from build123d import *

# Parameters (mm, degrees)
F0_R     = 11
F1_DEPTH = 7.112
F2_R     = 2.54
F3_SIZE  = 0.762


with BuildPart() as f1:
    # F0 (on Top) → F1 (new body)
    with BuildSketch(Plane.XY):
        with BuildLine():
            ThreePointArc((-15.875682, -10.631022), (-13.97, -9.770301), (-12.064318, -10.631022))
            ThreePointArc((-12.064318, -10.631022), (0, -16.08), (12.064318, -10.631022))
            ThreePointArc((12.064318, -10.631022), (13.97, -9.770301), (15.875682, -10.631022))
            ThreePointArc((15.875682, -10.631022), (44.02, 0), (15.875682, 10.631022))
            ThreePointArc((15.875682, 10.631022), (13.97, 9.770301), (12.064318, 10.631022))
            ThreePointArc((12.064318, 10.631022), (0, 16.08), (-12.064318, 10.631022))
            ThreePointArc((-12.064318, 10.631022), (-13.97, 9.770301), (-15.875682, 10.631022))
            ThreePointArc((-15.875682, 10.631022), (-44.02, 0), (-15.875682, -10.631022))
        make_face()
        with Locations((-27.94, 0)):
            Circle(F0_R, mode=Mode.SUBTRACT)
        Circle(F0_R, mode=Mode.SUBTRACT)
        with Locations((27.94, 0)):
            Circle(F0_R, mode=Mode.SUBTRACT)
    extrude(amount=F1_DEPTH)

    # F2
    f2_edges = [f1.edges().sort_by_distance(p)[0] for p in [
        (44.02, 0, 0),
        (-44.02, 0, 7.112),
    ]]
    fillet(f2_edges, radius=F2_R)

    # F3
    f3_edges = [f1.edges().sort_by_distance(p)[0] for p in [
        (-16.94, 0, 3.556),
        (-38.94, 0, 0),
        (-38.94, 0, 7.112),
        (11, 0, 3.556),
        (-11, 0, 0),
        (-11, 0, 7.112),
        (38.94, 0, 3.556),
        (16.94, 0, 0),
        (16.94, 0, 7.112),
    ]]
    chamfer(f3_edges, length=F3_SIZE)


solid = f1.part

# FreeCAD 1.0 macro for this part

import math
import FreeCAD as App
import Part
import Sketcher
from FreeCAD import Vector
Q = App.Units.Quantity


def edges_at(feature, points):
    """Names of the edges that pass closest to the given points."""
    edges = feature.Shape.Edges
    near = lambda p: min(range(len(edges)), key=lambda i: edges[i].distToShape(Part.Vertex(*p))[0])
    return sorted({f"Edge{near(p) + 1}" for p in points})

doc = App.newDocument("Part")
body = doc.addObject("PartDesign::Body", "Body")

sketch1 = body.newObject("Sketcher::SketchObject", "Sketch")
sketch1.AttachmentSupport = (doc.getObject("XY_Plane"), [""])
sketch1.MapMode = "FlatFace"
sketch1.addGeometry([
    Part.ArcOfCircle(Part.Circle(Vector(-14, -12.3, 0), Vector(0, 0, 1), 2.5), math.radians(41), math.radians(139)),
    Part.ArcOfCircle(Part.Circle(Vector(0, 0, 0), Vector(0, 0, 1), 16.1), math.radians(-139), math.radians(-41)),
    Part.ArcOfCircle(Part.Circle(Vector(14, -12.3, 0), Vector(0, 0, 1), 2.5), math.radians(41), math.radians(139)),
    Part.ArcOfCircle(Part.Circle(Vector(27.9, 0, 0), Vector(0, 0, 1), 16.1), math.radians(-139), math.radians(139)),
    Part.ArcOfCircle(Part.Circle(Vector(14, 12.3, 0), Vector(0, 0, 1), 2.5), math.radians(-139), math.radians(-41)),
    Part.ArcOfCircle(Part.Circle(Vector(0, 0, 0), Vector(0, 0, 1), 16.1), math.radians(41), math.radians(139)),
    Part.ArcOfCircle(Part.Circle(Vector(-14, 12.3, 0), Vector(0, 0, 1), 2.5), math.radians(-139), math.radians(-41)),
    Part.ArcOfCircle(Part.Circle(Vector(-27.9, 0, 0), Vector(0, 0, 1), 16.1), math.radians(41), math.radians(319)),
    Part.Circle(Vector(-27.9, 0, 0), Vector(0, 0, 1), 11),
    Part.Circle(Vector(0, 0, 0), Vector(0, 0, 1), 11),
    Part.Circle(Vector(27.9, 0, 0), Vector(0, 0, 1), 11),
], False)
sketch1.addConstraint([
    Sketcher.Constraint("Tangent", 0, 1, 1, 1),
    Sketcher.Constraint("Tangent", 1, 2, 2, 2),
    Sketcher.Constraint("Tangent", 2, 1, 3, 1),
    Sketcher.Constraint("Tangent", 3, 2, 4, 2),
    Sketcher.Constraint("Tangent", 4, 1, 5, 1),
    Sketcher.Constraint("Tangent", 5, 2, 6, 2),
    Sketcher.Constraint("Tangent", 6, 1, 7, 1),
    Sketcher.Constraint("Tangent", 7, 2, 0, 2),
    Sketcher.Constraint("Coincident", 1, 3, -1, 1),
    Sketcher.Constraint("Coincident", 5, 3, -1, 1),
    Sketcher.Constraint("Coincident", 9, 3, -1, 1),
    Sketcher.Constraint("Coincident", 8, 3, 7, 3),
    Sketcher.Constraint("Coincident", 10, 3, 3, 3),
    Sketcher.Constraint("Equal", 0, 2),
    Sketcher.Constraint("Equal", 1, 3),
    Sketcher.Constraint("Equal", 2, 4),
    Sketcher.Constraint("Equal", 3, 5),
    Sketcher.Constraint("Equal", 4, 6),
    Sketcher.Constraint("Equal", 5, 7),
    Sketcher.Constraint("Equal", 8, 9),
    Sketcher.Constraint("Equal", 9, 10),
    Sketcher.Constraint("Symmetric", 3, 3, 7, 3, -1, 1),
    Sketcher.Constraint("PointOnObject", 3, 3, -1),
    Sketcher.Constraint("Radius", 0, Q("0.1 in")),
    Sketcher.Constraint("DistanceX", -1, 1, 3, 3, Q("1.1 in")),
    Sketcher.Constraint("Diameter", 8, 22.0),
    Sketcher.Constraint("Radius", 1, 16.08),
])
pad1 = body.newObject("PartDesign::Pad", "Pad")
pad1.Profile = sketch1
pad1.Length = Q("0.28 in")
doc.recompute()

fillet = body.newObject("PartDesign::Fillet", "Fillet")
fillet.Base = (pad1, edges_at(pad1, [(44.02, 0, 0), (-44.02, 0, 7.112)]))
fillet.Radius = Q("0.1 in")
doc.recompute()

chamfer = body.newObject("PartDesign::Chamfer", "Chamfer")
chamfer.Base = (fillet, edges_at(fillet, [
    (-16.94, 0, 3.556),
    (-38.94, 0, 0),
    (-38.94, 0, 7.112),
    (11, 0, 3.556),
    (-11, 0, 0),
    (-11, 0, 7.112),
    (38.94, 0, 3.556),
    (16.94, 0, 0),
    (16.94, 0, 7.112),
]))
chamfer.Size = Q("0.03 in")

doc.recompute()
